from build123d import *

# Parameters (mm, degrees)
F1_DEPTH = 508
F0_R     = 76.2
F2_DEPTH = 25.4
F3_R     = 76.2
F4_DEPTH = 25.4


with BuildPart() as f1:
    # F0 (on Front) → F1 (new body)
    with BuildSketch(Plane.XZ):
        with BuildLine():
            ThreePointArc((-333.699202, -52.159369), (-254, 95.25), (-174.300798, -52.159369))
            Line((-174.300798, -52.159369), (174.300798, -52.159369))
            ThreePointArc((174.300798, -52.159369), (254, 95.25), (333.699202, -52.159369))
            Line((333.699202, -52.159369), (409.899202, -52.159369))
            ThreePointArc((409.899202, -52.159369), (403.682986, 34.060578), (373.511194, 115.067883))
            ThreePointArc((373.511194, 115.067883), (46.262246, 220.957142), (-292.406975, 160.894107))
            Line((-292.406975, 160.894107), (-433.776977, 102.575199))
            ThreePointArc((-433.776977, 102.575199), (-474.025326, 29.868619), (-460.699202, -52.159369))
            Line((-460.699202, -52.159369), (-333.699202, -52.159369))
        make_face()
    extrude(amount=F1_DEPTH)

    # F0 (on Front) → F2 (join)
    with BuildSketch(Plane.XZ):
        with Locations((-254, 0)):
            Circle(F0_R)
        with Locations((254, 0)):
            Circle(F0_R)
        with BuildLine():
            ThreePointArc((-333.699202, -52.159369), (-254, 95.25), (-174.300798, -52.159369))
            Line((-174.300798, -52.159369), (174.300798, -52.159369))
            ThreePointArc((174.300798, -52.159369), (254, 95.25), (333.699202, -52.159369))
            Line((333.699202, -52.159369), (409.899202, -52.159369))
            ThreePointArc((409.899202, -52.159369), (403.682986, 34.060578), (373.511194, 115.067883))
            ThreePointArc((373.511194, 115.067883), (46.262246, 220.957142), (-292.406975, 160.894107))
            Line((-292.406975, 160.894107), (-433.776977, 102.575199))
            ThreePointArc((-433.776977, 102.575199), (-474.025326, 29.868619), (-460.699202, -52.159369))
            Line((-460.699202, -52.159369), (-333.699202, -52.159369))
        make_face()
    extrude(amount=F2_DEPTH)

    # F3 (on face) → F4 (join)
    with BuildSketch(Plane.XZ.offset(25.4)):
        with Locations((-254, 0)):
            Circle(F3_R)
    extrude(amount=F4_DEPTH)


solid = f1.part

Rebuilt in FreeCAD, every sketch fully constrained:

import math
import FreeCAD as App
import Part
import Sketcher
Q = App.Units.Quantity

doc = App.newDocument("Part")
params = doc.addObject("Spreadsheet::Sheet", "Params")
for row, (alias, value) in enumerate([
    ("sketch1_radius", "28.0000001 in"),
    ("sketch1_radius2", "5 in"),
    ("sketch1_width", "3 in"),
    ("sketch1_width2", "5 in"),
    ("sketch1_radius3", "3.75 in"),
    ("pad1_length", "20 in"),
    ("sketch2_diameter", "6 in"),
    ("sketch2_radius", "28.0000001 in"),
    ("sketch2_radius2", "5 in"),
    ("sketch2_width", "3 in"),
    ("sketch2_width2", "5 in"),
    ("pad2_length", "1 in"),
    ("sketch3_diameter", "6 in"),
    ("pad3_length", "1 in"),
], start=1):
    params.set(f"A{row}", alias)
    params.set(f"B{row}", "=" + value)
    params.setAlias(f"B{row}", alias)

body = doc.addObject("PartDesign::Body", "Body")
body.AllowCompound = True

sketch1 = body.newObject("Sketcher::SketchObject", "Sketch")
sketch1.AttachmentSupport = (doc.getObject("XZ_Plane"), [""])
sketch1.MapMode = "FlatFace"
sketch1.addGeometry([
    Part.ArcOfCircle(Part.Circle(App.Vector(-254, 0, 0), App.Vector(0, 0, 1), 95), math.radians(-33), math.radians(213)),
    Part.LineSegment(App.Vector(-174, -52, 0), App.Vector(174, -52, 0)),
    Part.ArcOfCircle(Part.Circle(App.Vector(254, 0, 0), App.Vector(0, 0, 1), 95), math.radians(-33), math.radians(213)),
    Part.LineSegment(App.Vector(334, -52, 0), App.Vector(410, -52, 0)),
    Part.ArcOfCircle(Part.Circle(App.Vector(106, -31, 0), App.Vector(0, 0, 1), 305), math.radians(-4), math.radians(29)),
    Part.ArcOfCircle(Part.Circle(App.Vector(-3, -489, 0), App.Vector(0, 0, 1), 711), math.radians(58), math.radians(114)),
    Part.LineSegment(App.Vector(-292, 161, 0), App.Vector(-434, 103, 0)),
    Part.ArcOfCircle(Part.Circle(App.Vector(-349, 8, 0), App.Vector(0, 0, 1), 127), math.radians(132), math.radians(208)),
    Part.LineSegment(App.Vector(-461, -52, 0), App.Vector(-334, -52, 0)),
], False)
sketch1.addConstraint([
    Sketcher.Constraint("Coincident", 0, 1, 1, 1),
    Sketcher.Constraint("Coincident", 1, 2, 2, 2),
    Sketcher.Constraint("Coincident", 2, 1, 3, 1),
    Sketcher.Constraint("Coincident", 3, 2, 4, 1),
    Sketcher.Constraint("Coincident", 4, 2, 5, 1),
    Sketcher.Constraint("Coincident", 5, 2, 6, 1),
    Sketcher.Constraint("Coincident", 6, 2, 7, 1),
    Sketcher.Constraint("Coincident", 7, 2, 8, 1),
    Sketcher.Constraint("Coincident", 8, 2, 0, 2),
    Sketcher.Constraint("Horizontal", 1),
    Sketcher.Constraint("Horizontal", 3),
    Sketcher.Constraint("Horizontal", 8),
    Sketcher.Constraint("Equal", 0, 2),
    Sketcher.Constraint("Symmetric", 0, 3, 2, 3, -1, 1),
    Sketcher.Constraint("Symmetric", 2, 1, 8, 2, -2),
    Sketcher.Constraint("Horizontal", 1, 2, 2, 1),
    Sketcher.Constraint("Radius", 5, Q("28.0000001 in")),
    Sketcher.Constraint("Radius", 7, Q("5 in")),
    Sketcher.Constraint("DistanceX", 3, 1, 3, 2, Q("3 in")),
    Sketcher.Constraint("DistanceX", 8, 1, 8, 2, Q("5 in")),
    Sketcher.Constraint("Radius", 0, Q("3.75 in")),
    Sketcher.Constraint("DistanceX", 0, 3, -1, 1, Q("10 in")),
    Sketcher.Constraint("Radius", 4, 304.800009),
    Sketcher.Constraint("DistanceX", -1, 1, 3, 2, 409.899202),
    Sketcher.Constraint("DistanceY", -1, 1, 6, 2, 102.575199),
    Sketcher.Constraint("DistanceX", 4, 3, 4, 2, 267.658902),
    Sketcher.Constraint("Distance", 6, 152.92669),
    Sketcher.Constraint("DistanceX", 5, 3, -1, 1, 2.564641),
    Sketcher.Constraint("DistanceY", 5, 3, 7, 3, 496.663771),
    Sketcher.Constraint("DistanceY", 0, 1, 4, 3, 21.413131),
])
sketch1.setExpression("Constraints[16]", "Params.sketch1_radius")
sketch1.setExpression("Constraints[17]", "Params.sketch1_radius2")
sketch1.setExpression("Constraints[18]", "Params.sketch1_width")
sketch1.setExpression("Constraints[19]", "Params.sketch1_width2")
sketch1.setExpression("Constraints[20]", "Params.sketch1_radius3")
pad1 = body.newObject("PartDesign::Pad", "Pad")
pad1.Profile = sketch1
pad1.setExpression("Length", "Params.pad1_length")

sketch2 = body.newObject("Sketcher::SketchObject", "Sketch001")
sketch2.AttachmentSupport = (doc.getObject("XZ_Plane"), [""])
sketch2.MapMode = "FlatFace"
sketch2.addGeometry([
    Part.Circle(App.Vector(-254, 0, 0), App.Vector(0, 0, 1), 76),
    Part.Circle(App.Vector(254, 0, 0), App.Vector(0, 0, 1), 76),
    Part.ArcOfCircle(Part.Circle(App.Vector(-254, 0, 0), App.Vector(0, 0, 1), 95), math.radians(-33), math.radians(213)),
    Part.LineSegment(App.Vector(-174, -52, 0), App.Vector(174, -52, 0)),
    Part.ArcOfCircle(Part.Circle(App.Vector(254, 0, 0), App.Vector(0, 0, 1), 95), math.radians(-33), math.radians(213)),
    Part.LineSegment(App.Vector(334, -52, 0), App.Vector(410, -52, 0)),
    Part.ArcOfCircle(Part.Circle(App.Vector(106, -31, 0), App.Vector(0, 0, 1), 305), math.radians(-4), math.radians(29)),
    Part.ArcOfCircle(Part.Circle(App.Vector(-3, -489, 0), App.Vector(0, 0, 1), 711), math.radians(58), math.radians(114)),
    Part.LineSegment(App.Vector(-292, 161, 0), App.Vector(-434, 103, 0)),
    Part.ArcOfCircle(Part.Circle(App.Vector(-349, 8, 0), App.Vector(0, 0, 1), 127), math.radians(132), math.radians(208)),
    Part.LineSegment(App.Vector(-461, -52, 0), App.Vector(-334, -52, 0)),
], False)
sketch2.addConstraint([
    Sketcher.Constraint("Coincident", 2, 1, 3, 1),
    Sketcher.Constraint("Coincident", 3, 2, 4, 2),
    Sketcher.Constraint("Coincident", 4, 1, 5, 1),
    Sketcher.Constraint("Coincident", 5, 2, 6, 1),
    Sketcher.Constraint("Coincident", 6, 2, 7, 1),
    Sketcher.Constraint("Coincident", 7, 2, 8, 1),
    Sketcher.Constraint("Coincident", 8, 2, 9, 1),
    Sketcher.Constraint("Coincident", 9, 2, 10, 1),
    Sketcher.Constraint("Coincident", 10, 2, 2, 2),
    Sketcher.Constraint("Horizontal", 3),
    Sketcher.Constraint("Horizontal", 5),
    Sketcher.Constraint("Horizontal", 10),
    Sketcher.Constraint("Coincident", 2, 3, 0, 3),
    Sketcher.Constraint("Coincident", 4, 3, 1, 3),
    Sketcher.Constraint("Equal", 0, 1),
    Sketcher.Constraint("Equal", 2, 4),
    Sketcher.Constraint("Symmetric", 0, 3, 1, 3, -1, 1),
    Sketcher.Constraint("Symmetric", 4, 1, 10, 2, -2),
    Sketcher.Constraint("Horizontal", 3, 2, 4, 1),
    Sketcher.Constraint("Diameter", 0, Q("6 in")),
    Sketcher.Constraint("Radius", 7, Q("28.0000001 in")),
    Sketcher.Constraint("Radius", 9, Q("5 in")),
    Sketcher.Constraint("DistanceX", 5, 1, 5, 2, Q("3 in")),
    Sketcher.Constraint("DistanceX", 10, 1, 10, 2, Q("5 in")),
    Sketcher.Constraint("Radius", 2, Q("3.75 in")),
    Sketcher.Constraint("DistanceX", 0, 3, -1, 1, Q("10 in")),
    Sketcher.Constraint("Radius", 6, 304.800009),
    Sketcher.Constraint("DistanceX", -1, 1, 5, 2, 409.899202),
    Sketcher.Constraint("DistanceY", -1, 1, 8, 2, 102.575199),
    Sketcher.Constraint("Distance", 8, 152.92669),
    Sketcher.Constraint("DistanceX", 7, 3, -1, 1, 2.564641),
    Sketcher.Constraint("DistanceY", 2, 1, 6, 3, 21.413131),
    Sketcher.Constraint("DistanceX", 6, 2, 5, 2, 36.388008),
    Sketcher.Constraint("DistanceY", 9, 3, 7, 2, 152.79513),
])
sketch2.setExpression("Constraints[19]", "Params.sketch2_diameter")
sketch2.setExpression("Constraints[20]", "Params.sketch2_radius")
sketch2.setExpression("Constraints[21]", "Params.sketch2_radius2")
sketch2.setExpression("Constraints[22]", "Params.sketch2_width")
sketch2.setExpression("Constraints[23]", "Params.sketch2_width2")
pad2 = body.newObject("PartDesign::Pad", "Pad001")
pad2.Profile = sketch2
pad2.setExpression("Length", "Params.pad2_length")

sketch3 = body.newObject("Sketcher::SketchObject", "Sketch002")
sketch3.AttachmentSupport = (doc.getObject("XZ_Plane"), [""])
sketch3.MapMode = "FlatFace"
sketch3.AttachmentOffset = App.Placement(App.Vector(0, 0, 1 * 25.4), App.Rotation())
sketch3.addGeometry(Part.Circle(App.Vector(-254, 0, 0), App.Vector(0, 0, 1), 76), False)
sketch3.addConstraint([
    Sketcher.Constraint("PointOnObject", 0, 3, -1),
    Sketcher.Constraint("Diameter", 0, Q("6 in")),
    Sketcher.Constraint("DistanceX", 0, 3, -1, 1, Q("10 in")),
])
sketch3.setExpression("Constraints[1]", "Params.sketch3_diameter")
pad3 = body.newObject("PartDesign::Pad", "Pad002")
pad3.Profile = sketch3
pad3.setExpression("Length", "Params.pad3_length")

doc.recompute()
